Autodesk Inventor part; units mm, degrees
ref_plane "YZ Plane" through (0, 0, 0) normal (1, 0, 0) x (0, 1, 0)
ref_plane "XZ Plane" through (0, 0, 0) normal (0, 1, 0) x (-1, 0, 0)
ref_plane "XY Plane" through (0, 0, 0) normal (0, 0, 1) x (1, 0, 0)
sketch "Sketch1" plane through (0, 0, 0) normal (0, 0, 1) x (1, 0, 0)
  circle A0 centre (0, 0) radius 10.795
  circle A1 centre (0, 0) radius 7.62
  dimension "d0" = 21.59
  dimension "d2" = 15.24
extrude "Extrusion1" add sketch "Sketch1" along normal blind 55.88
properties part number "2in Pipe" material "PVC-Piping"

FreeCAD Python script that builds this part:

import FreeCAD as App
import Part
import Sketcher
from FreeCAD import Vector
Q = App.Units.Quantity

doc = App.newDocument("Part")
body = doc.addObject("PartDesign::Body", "Body")

# Sketch on XY plane
sketch1 = body.newObject("Sketcher::SketchObject", "Sketch")
sketch1.AttachmentSupport = (doc.getObject("XY_Plane"), [""])
sketch1.MapMode = "FlatFace"
sketch1.addGeometry([
    Part.Circle(Vector(0, 0, 0), Vector(0, 0, 1), 11),
    Part.Circle(Vector(0, 0, 0), Vector(0, 0, 1), 8),
], False)
sketch1.addConstraint([
    Sketcher.Constraint("Coincident", 0, 3, -1, 1),
    Sketcher.Constraint("Coincident", 1, 3, -1, 1),
    Sketcher.Constraint("Diameter", 1, Q("0.6 in")),
    Sketcher.Constraint("Diameter", 0, Q("0.85 in")),
])
pad1 = body.newObject("PartDesign::Pad", "Pad")
pad1.Profile = sketch1
pad1.Length = Q("2.2 in")

doc.recompute()
